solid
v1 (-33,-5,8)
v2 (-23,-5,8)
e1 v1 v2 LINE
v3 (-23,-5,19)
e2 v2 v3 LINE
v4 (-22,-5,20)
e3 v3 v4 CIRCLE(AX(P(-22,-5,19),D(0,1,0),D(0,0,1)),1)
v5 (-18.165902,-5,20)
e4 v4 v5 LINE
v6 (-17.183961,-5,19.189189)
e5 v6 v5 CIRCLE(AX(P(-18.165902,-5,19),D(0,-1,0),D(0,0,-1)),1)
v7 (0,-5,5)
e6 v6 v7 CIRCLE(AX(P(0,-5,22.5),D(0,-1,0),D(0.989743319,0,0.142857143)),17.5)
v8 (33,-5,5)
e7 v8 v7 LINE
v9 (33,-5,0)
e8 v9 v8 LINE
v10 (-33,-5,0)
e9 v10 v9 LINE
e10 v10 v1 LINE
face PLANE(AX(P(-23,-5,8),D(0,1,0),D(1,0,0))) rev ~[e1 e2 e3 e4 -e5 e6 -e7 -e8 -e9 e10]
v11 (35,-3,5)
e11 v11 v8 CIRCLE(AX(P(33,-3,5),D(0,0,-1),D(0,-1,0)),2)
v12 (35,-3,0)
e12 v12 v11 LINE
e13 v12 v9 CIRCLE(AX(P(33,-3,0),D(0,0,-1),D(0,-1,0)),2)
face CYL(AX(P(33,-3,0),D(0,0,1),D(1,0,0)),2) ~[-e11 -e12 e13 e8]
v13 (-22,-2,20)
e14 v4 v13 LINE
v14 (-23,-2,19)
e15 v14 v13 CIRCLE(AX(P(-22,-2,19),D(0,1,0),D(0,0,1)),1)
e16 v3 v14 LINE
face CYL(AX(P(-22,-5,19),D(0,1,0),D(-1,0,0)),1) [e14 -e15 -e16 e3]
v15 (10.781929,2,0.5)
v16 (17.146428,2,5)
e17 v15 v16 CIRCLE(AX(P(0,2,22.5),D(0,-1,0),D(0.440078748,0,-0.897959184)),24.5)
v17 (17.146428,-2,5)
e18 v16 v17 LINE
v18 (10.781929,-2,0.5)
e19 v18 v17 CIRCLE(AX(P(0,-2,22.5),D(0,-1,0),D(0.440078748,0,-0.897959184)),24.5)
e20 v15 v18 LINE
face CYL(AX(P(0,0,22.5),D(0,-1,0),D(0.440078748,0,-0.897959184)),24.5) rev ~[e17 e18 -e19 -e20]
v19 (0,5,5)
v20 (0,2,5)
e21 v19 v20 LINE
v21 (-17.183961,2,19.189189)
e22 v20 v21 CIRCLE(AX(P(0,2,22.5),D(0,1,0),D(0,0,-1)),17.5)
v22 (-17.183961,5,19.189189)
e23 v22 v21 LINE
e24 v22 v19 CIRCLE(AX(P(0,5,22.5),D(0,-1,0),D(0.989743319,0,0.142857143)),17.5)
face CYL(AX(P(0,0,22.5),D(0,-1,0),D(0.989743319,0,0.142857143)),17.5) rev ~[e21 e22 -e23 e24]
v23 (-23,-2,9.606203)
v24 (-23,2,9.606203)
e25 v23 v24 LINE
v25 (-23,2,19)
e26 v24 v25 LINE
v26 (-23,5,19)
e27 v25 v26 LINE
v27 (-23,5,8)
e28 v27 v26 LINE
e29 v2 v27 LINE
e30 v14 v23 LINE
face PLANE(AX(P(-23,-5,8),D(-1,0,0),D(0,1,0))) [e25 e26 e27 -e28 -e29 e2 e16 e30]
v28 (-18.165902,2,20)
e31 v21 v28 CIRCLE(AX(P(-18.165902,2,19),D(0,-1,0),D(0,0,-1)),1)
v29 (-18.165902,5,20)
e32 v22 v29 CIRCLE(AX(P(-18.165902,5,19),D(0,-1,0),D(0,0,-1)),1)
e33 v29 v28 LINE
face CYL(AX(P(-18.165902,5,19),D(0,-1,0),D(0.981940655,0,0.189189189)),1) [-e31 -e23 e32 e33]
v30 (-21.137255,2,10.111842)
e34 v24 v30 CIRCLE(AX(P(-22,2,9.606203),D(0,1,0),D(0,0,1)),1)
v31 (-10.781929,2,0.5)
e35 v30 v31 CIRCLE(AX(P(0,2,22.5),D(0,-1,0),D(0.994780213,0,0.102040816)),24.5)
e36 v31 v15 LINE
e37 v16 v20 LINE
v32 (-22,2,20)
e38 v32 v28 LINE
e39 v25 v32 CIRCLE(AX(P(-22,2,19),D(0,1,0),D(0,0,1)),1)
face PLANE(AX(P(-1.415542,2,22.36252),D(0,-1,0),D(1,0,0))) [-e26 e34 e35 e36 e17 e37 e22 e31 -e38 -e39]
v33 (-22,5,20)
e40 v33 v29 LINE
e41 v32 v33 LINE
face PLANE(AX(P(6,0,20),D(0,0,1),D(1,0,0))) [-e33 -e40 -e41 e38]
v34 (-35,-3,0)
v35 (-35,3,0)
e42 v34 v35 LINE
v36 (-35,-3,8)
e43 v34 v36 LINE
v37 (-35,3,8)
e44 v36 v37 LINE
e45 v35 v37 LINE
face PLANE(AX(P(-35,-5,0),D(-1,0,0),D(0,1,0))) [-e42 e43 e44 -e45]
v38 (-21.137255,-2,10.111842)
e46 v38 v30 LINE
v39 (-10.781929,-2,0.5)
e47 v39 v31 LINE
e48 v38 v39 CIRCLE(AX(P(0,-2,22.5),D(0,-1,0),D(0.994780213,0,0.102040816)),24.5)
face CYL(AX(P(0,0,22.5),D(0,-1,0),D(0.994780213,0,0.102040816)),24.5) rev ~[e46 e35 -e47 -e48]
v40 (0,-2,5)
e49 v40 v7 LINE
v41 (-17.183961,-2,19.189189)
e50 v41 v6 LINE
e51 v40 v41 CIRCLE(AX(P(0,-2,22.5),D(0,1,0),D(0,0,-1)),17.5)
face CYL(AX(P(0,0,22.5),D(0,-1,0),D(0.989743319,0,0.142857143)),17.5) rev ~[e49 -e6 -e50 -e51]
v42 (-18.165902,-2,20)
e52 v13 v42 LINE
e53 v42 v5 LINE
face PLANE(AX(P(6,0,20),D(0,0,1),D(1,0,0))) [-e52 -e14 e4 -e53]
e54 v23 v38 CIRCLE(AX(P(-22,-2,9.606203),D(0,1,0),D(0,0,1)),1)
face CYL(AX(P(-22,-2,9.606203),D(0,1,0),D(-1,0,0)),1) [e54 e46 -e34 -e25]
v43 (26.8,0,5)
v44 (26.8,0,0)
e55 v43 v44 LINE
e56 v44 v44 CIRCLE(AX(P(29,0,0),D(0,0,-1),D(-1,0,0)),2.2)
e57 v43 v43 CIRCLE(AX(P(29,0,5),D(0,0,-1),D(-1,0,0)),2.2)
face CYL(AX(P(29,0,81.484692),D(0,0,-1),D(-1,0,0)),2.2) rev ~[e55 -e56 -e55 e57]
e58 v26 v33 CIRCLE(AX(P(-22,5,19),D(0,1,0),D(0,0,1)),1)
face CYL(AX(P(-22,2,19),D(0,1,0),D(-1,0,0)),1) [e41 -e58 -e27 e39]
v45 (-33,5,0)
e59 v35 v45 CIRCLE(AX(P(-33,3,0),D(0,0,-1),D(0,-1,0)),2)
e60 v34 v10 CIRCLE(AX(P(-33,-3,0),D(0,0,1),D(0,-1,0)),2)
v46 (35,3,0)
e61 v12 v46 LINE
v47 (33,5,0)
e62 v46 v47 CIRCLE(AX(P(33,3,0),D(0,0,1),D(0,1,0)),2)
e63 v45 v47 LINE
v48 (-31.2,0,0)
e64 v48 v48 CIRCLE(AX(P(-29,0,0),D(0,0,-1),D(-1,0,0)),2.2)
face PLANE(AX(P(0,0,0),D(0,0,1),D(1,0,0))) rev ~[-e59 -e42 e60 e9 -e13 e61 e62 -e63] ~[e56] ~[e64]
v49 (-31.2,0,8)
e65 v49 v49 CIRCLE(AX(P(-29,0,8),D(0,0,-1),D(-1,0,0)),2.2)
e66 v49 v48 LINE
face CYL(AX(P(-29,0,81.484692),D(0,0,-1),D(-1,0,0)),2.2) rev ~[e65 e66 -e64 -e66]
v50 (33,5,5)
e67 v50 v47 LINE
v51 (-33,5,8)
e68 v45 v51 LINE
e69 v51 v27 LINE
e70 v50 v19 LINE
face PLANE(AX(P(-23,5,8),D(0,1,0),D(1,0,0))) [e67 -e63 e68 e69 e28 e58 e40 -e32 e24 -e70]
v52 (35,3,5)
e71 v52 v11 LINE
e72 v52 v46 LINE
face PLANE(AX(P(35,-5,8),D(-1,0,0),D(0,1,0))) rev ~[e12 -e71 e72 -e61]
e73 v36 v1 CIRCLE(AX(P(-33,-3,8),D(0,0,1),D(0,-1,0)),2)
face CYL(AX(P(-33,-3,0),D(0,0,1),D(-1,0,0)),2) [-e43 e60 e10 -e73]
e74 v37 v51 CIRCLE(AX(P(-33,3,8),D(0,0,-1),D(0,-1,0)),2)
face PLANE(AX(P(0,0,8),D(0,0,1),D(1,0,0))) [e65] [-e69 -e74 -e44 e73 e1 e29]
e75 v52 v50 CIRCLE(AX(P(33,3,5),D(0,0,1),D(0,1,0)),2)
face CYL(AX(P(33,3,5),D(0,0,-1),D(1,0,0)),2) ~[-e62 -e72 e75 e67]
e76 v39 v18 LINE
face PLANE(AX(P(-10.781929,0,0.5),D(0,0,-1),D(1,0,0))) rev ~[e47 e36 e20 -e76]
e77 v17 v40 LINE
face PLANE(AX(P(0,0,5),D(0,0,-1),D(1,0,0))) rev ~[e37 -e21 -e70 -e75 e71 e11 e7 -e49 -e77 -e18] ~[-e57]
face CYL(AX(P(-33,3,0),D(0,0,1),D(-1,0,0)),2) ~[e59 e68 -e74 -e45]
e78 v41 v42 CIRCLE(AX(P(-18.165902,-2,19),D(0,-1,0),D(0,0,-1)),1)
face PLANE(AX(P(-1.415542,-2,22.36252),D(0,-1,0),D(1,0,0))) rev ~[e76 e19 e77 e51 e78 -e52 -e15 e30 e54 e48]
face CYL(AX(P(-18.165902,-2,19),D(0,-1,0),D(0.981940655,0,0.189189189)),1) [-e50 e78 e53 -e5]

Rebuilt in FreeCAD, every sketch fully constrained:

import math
import FreeCAD as App
import Part
import Sketcher


def edges_at(feature, points):
    """Names of the edges that pass closest to the given points."""
    edges = feature.Shape.Edges
    near = lambda p: min(range(len(edges)), key=lambda i: edges[i].distToShape(Part.Vertex(*p))[0])
    return sorted({f"Edge{near(p) + 1}" for p in points})

doc = App.newDocument("Part")
body = doc.addObject("PartDesign::Body", "Body")

# Sketch on XY plane
sketch1 = body.newObject("Sketcher::SketchObject", "Sketch")
sketch1.AttachmentSupport = (doc.getObject("XY_Plane"), [""])
sketch1.MapMode = "FlatFace"
sketch1.addGeometry([
    Part.LineSegment(App.Vector(-35, 5, 0), App.Vector(-35, -5, 0)),
    Part.LineSegment(App.Vector(-35, -5, 0), App.Vector(35, -5, 0)),
    Part.LineSegment(App.Vector(35, -5, 0), App.Vector(35, 5, 0)),
    Part.LineSegment(App.Vector(35, 5, 0), App.Vector(-35, 5, 0)),
], False)
sketch1.addConstraint([
    Sketcher.Constraint("Coincident", 0, 2, 1, 1),
    Sketcher.Constraint("Coincident", 1, 2, 2, 1),
    Sketcher.Constraint("Coincident", 2, 2, 3, 1),
    Sketcher.Constraint("Coincident", 3, 2, 0, 1),
    Sketcher.Constraint("Vertical", 0),
    Sketcher.Constraint("Horizontal", 1),
    Sketcher.Constraint("Vertical", 2),
    Sketcher.Constraint("Horizontal", 3),
    Sketcher.Constraint("Symmetric", 0, 2, 2, 2, -1, 1),
    Sketcher.Constraint("DistanceX", 1, 1, 1, 2, 70.0),
    Sketcher.Constraint("DistanceY", 0, 2, 0, 1, 10.0),
])
pad1 = body.newObject("PartDesign::Pad", "Pad")
pad1.Profile = sketch1
pad1.Length = 8

# Sketch on XY plane
sketch2 = body.newObject("Sketcher::SketchObject", "Sketch001")
sketch2.AttachmentSupport = (doc.getObject("XY_Plane"), [""])
sketch2.MapMode = "FlatFace"
sketch2.AttachmentOffset = App.Placement(App.Vector(0, 0, 8), App.Rotation())
sketch2.addGeometry([
    Part.LineSegment(App.Vector(-23, 5, 0), App.Vector(-23, -5, 0)),
    Part.LineSegment(App.Vector(-23, -5, 0), App.Vector(35, -5, 0)),
    Part.LineSegment(App.Vector(35, -5, 0), App.Vector(35, 5, 0)),
    Part.LineSegment(App.Vector(35, 5, 0), App.Vector(-23, 5, 0)),
], False)
sketch2.addConstraint([
    Sketcher.Constraint("Coincident", 0, 2, 1, 1),
    Sketcher.Constraint("Coincident", 1, 2, 2, 1),
    Sketcher.Constraint("Coincident", 2, 2, 3, 1),
    Sketcher.Constraint("Coincident", 3, 2, 0, 1),
    Sketcher.Constraint("Vertical", 0),
    Sketcher.Constraint("Horizontal", 1),
    Sketcher.Constraint("Vertical", 2),
    Sketcher.Constraint("Horizontal", 3),
    Sketcher.Constraint("DistanceX", 1, 1, 1, 2, 58.0),
    Sketcher.Constraint("DistanceY", 0, 2, 0, 1, 10.0),
    Sketcher.Constraint("DistanceX", 0, 2, -1, 1, 23.0),
    Sketcher.Constraint("DistanceY", 0, 2, -1, 1, 5.0),
])
pad2 = body.newObject("PartDesign::Pad", "Pad001")
pad2.Profile = sketch2
pad2.Length = 12

# Sketch on XZ plane
sketch3 = body.newObject("Sketcher::SketchObject", "Sketch002")
sketch3.AttachmentSupport = (doc.getObject("XZ_Plane"), [""])
sketch3.MapMode = "FlatFace"
sketch3.addGeometry([
    Part.ArcOfCircle(Part.Circle(App.Vector(0, 22, 0), App.Vector(0, 0, 1), 18), math.radians(8), math.radians(270)),
    Part.LineSegment(App.Vector(0, 5, 0), App.Vector(36, 5, 0)),
    Part.LineSegment(App.Vector(36, 5, 0), App.Vector(36, 25, 0)),
    Part.LineSegment(App.Vector(36, 25, 0), App.Vector(17, 25, 0)),
], False)
sketch3.addConstraint([
    Sketcher.Constraint("Tangent", 0, 2, 1, 1),
    Sketcher.Constraint("Coincident", 1, 2, 2, 1),
    Sketcher.Constraint("Coincident", 2, 2, 3, 1),
    Sketcher.Constraint("Coincident", 3, 2, 0, 1),
    Sketcher.Constraint("Horizontal", 1),
    Sketcher.Constraint("Vertical", 2),
    Sketcher.Constraint("Horizontal", 3),
    Sketcher.Constraint("PointOnObject", 0, 3, -2),
    Sketcher.Constraint("Radius", 0, 17.5),
    Sketcher.Constraint("DistanceY", 2, 1, 2, 2, 20.0),
    Sketcher.Constraint("DistanceY", -1, 1, 0, 2, 5.0),
    Sketcher.Constraint("DistanceX", 1, 1, 1, 2, 36.303956),
])
pocket1 = body.newObject("PartDesign::Pocket", "Pocket")
pocket1.Profile = sketch3
pocket1.Length = 15
pocket1.Midplane = True

# Sketch on XY plane
sketch4 = body.newObject("Sketcher::SketchObject", "Sketch003")
sketch4.AttachmentSupport = (doc.getObject("XY_Plane"), [""])
sketch4.MapMode = "FlatFace"
sketch4.AttachmentOffset = App.Placement(App.Vector(0, 0, 8), App.Rotation())
sketch4.addGeometry([
    Part.Circle(App.Vector(-29, 0, 0), App.Vector(0, 0, 1), 2.2),
    Part.Circle(App.Vector(29, 0, 0), App.Vector(0, 0, 1), 2.2),
], False)
sketch4.addConstraint([
    Sketcher.Constraint("Equal", 0, 1),
    Sketcher.Constraint("Symmetric", 0, 3, 1, 3, -1, 1),
    Sketcher.Constraint("PointOnObject", 0, 3, -1),
    Sketcher.Constraint("Diameter", 0, 4.4),
    Sketcher.Constraint("DistanceX", 0, 3, -1, 1, 29.0),
])
doc.recompute()
hole = body.newObject("PartDesign::Hole", "Hole")
hole.Profile = sketch4
hole.ThreadType = "None"
hole.Diameter = 4.4
hole.DepthType = "ThroughAll"

# Sketch on XZ plane
sketch5 = body.newObject("Sketcher::SketchObject", "Sketch004")
sketch5.AttachmentSupport = (doc.getObject("XZ_Plane"), [""])
sketch5.MapMode = "FlatFace"
sketch5.addGeometry([
    Part.ArcOfCircle(Part.Circle(App.Vector(0, 22.5, 0), App.Vector(0, 0, 1), 24.5), math.radians(6), math.radians(244)),  # 0
    Part.LineSegment(App.Vector(-10.8, 0.5, 0), App.Vector(10.8, 0.5, 0)),  # 1
    Part.ArcOfCircle(Part.Circle(App.Vector(0, 22.5, 0), App.Vector(0, 0, 1), 24.5), math.radians(-63.89), math.radians(-45.58)),  # 2
    Part.ArcOfCircle(Part.Circle(App.Vector(0, 22.5, 0), App.Vector(0, 0, 1), 24.5), math.radians(-46), math.radians(0)),  # 3
    Part.ArcOfCircle(Part.Circle(App.Vector(0, 22.5, 0), App.Vector(0, 0, 1), 24.5), math.radians(0), math.radians(5.86)),  # 4
    Part.ArcOfCircle(Part.Circle(App.Vector(0, 22.5, 0), App.Vector(0, 0, 1), 17.5), math.radians(8), math.radians(270)),  # 5
    Part.ArcOfCircle(Part.Circle(App.Vector(0, 22.5, 0), App.Vector(0, 0, 1), 17.5), math.radians(0), math.radians(8.21)),  # 6
    Part.ArcOfCircle(Part.Circle(App.Vector(0, 22.5, 0), App.Vector(0, 0, 1), 17.5), math.radians(-90), math.radians(0)),  # 7
], False)
sketch5.addConstraint([
    Sketcher.Constraint("Coincident", 0, 2, 1, 1),
    Sketcher.Constraint("Coincident", 1, 2, 2, 1),
    Sketcher.Constraint("Tangent", 2, 2, 3, 1),
    Sketcher.Constraint("Tangent", 3, 2, 4, 1),
    Sketcher.Constraint("Tangent", 4, 2, 0, 1),
    Sketcher.Constraint("Tangent", 5, 1, 6, 2),
    Sketcher.Constraint("Tangent", 6, 1, 7, 2),
    Sketcher.Constraint("Tangent", 7, 1, 5, 2),
    Sketcher.Constraint("Horizontal", 1),
    Sketcher.Constraint("Coincident", 2, 3, 0, 3),
    Sketcher.Constraint("Coincident", 5, 3, 0, 3),
    Sketcher.Constraint("Equal", 0, 2),
    Sketcher.Constraint("PointOnObject", 0, 3, -2),
    Sketcher.Constraint("PointOnObject", 7, 1, -2),
    Sketcher.Constraint("Horizontal", 7, 3, 3, 2),
    Sketcher.Constraint("Horizontal", 4, 2, 5, 1),
    Sketcher.Constraint("Horizontal", 3, 2, 6, 1),
    Sketcher.Constraint("Horizontal", 2, 2, 7, 1),
    Sketcher.Constraint("Radius", 0, 24.5),
    Sketcher.Constraint("Radius", 5, 17.5),
    Sketcher.Constraint("DistanceY", -1, 1, 2, 2, 5.0),
    Sketcher.Constraint("DistanceY", -1, 1, 4, 2, 25.0),
    Sketcher.Constraint("DistanceY", 0, 2, 6, 3, 22.0),
])
pocket2 = body.newObject("PartDesign::Pocket", "Pocket001")
pocket2.Profile = sketch5
pocket2.Length = 4
pocket2.Midplane = True
doc.recompute()

fillet = body.newObject("PartDesign::Fillet", "Fillet")
fillet.Base = (pocket2, edges_at(pocket2, [
    (-17.321, 3.5, 20),
    (-17.321, -3.5, 20),
    (-23, -3.5, 20),
    (-23, 3.5, 20),
    (-23, 0, 14.059),
]))
fillet.Radius = 1
doc.recompute()

fillet2 = body.newObject("PartDesign::Fillet", "Fillet001")
fillet2.Base = (fillet, edges_at(fillet, [
    (-35, -5, 4),
    (-35, 5, 4),
    (35, -5, 2.5),
    (35, 5, 2.5),
]))
fillet2.Radius = 2

doc.recompute()
